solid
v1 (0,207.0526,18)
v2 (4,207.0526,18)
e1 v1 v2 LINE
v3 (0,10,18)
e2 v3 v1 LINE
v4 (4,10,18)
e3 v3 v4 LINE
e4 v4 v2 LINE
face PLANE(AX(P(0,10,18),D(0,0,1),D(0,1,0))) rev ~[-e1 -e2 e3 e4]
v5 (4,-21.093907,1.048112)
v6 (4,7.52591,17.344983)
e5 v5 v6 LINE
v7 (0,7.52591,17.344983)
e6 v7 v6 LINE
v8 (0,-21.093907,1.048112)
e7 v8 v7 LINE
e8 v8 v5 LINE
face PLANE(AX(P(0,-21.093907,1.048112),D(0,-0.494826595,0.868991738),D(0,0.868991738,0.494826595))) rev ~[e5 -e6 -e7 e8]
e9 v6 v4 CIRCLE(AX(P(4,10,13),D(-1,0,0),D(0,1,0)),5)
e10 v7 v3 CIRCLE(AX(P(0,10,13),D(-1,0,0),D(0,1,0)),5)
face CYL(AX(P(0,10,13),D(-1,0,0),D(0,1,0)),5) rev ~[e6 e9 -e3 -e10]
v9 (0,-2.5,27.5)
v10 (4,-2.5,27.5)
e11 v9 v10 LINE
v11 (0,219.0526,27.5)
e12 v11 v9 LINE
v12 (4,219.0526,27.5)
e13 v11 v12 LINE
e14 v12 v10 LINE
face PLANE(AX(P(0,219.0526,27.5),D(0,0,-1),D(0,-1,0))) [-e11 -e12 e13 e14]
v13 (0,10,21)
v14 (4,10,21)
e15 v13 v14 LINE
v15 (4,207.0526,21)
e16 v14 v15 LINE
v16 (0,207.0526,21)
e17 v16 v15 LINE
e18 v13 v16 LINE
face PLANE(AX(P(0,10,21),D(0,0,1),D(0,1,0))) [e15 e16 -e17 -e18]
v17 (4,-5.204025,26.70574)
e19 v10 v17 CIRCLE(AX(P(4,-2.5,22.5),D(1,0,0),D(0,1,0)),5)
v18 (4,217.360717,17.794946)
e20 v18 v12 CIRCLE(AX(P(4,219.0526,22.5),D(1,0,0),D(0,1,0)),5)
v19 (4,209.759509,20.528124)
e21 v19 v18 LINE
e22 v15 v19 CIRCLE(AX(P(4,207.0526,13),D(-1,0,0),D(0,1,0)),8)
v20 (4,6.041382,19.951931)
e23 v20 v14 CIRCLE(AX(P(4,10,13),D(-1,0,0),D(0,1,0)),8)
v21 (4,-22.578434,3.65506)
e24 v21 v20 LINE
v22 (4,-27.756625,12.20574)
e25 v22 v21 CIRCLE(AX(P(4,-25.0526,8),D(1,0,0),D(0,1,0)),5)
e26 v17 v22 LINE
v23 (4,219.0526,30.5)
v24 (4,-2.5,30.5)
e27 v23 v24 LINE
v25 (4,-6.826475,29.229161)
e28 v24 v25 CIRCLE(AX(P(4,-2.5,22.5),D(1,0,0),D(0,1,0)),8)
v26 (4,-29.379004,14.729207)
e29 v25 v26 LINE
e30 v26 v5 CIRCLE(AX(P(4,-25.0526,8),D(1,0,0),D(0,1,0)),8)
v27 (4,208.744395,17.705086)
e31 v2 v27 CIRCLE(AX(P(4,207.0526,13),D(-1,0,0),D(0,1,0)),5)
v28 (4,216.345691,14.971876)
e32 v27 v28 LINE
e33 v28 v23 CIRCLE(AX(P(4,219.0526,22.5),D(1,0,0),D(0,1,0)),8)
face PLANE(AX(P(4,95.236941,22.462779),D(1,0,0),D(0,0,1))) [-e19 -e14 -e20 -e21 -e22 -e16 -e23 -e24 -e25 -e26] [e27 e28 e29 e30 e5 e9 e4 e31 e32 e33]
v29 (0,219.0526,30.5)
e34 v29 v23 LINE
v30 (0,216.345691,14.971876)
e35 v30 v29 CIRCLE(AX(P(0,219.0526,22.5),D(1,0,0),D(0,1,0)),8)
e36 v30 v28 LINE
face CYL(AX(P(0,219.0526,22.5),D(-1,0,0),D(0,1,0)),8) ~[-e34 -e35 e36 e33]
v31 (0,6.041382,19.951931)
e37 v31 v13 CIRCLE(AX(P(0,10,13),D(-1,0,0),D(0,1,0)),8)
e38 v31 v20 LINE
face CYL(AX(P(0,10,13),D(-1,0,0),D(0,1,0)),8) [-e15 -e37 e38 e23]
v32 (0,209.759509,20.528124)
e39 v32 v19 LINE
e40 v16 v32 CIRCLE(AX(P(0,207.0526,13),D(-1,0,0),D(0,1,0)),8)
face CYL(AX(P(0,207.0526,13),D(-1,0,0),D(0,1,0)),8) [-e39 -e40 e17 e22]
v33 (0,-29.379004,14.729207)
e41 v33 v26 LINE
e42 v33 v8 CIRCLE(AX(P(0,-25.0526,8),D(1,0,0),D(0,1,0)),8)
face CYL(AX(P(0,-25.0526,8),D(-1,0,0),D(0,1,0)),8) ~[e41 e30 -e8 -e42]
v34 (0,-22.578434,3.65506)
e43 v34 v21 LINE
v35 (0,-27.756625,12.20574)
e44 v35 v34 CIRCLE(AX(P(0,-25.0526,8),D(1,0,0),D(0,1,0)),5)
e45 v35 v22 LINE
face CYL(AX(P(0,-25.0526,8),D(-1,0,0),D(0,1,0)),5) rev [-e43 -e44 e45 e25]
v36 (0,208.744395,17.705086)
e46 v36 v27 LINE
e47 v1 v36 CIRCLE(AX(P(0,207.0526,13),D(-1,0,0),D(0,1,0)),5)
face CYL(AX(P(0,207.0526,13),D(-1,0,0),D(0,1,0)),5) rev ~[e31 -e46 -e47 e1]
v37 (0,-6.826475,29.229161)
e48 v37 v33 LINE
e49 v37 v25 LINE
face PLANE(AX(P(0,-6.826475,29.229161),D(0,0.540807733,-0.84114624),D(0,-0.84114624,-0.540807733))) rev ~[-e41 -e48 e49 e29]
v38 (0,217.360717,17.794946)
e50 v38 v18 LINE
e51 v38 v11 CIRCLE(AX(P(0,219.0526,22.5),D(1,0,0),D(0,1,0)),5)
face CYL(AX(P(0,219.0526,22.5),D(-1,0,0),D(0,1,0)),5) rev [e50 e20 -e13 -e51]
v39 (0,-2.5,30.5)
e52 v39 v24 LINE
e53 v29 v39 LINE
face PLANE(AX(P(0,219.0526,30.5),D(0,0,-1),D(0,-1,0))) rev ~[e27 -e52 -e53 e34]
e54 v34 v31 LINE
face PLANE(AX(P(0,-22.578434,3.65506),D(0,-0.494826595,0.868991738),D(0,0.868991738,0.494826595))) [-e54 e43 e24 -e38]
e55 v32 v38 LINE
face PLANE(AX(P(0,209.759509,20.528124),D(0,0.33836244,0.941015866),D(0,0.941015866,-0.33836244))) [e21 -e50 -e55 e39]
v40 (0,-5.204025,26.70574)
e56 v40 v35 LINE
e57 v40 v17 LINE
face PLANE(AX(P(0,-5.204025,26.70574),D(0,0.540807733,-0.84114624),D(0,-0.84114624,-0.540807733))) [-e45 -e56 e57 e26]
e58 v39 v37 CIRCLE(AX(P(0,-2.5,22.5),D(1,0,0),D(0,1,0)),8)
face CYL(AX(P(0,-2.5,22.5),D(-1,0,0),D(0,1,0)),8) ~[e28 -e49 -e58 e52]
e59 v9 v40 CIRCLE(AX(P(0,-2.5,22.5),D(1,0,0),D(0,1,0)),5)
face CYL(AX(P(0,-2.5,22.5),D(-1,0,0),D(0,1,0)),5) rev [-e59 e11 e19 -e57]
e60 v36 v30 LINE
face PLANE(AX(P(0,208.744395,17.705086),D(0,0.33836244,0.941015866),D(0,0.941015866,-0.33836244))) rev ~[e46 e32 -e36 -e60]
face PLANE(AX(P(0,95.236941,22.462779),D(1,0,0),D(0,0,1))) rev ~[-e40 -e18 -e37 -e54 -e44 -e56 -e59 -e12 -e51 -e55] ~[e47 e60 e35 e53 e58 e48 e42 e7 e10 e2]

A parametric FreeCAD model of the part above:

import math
import FreeCAD as App
import Part
import Sketcher
from FreeCAD import Vector

doc = App.newDocument("Part")
params = doc.addObject("Spreadsheet::Sheet", "Params")
for row, (alias, value) in enumerate([
    ("sketch1_radius", "8 mm"),
    ("sketch1_radius2", "5 mm"),
    ("pad1_length", "4 mm"),
], start=1):
    params.set(f"A{row}", alias)
    params.set(f"B{row}", "=" + value)
    params.setAlias(f"B{row}", alias)

body = doc.addObject("PartDesign::Body", "Body")

# Sketch on YZ plane
sketch1 = body.newObject("Sketcher::SketchObject", "Sketch")
sketch1.AttachmentSupport = (doc.getObject("YZ_Plane"), [""])
sketch1.MapMode = "FlatFace"
sketch1.addGeometry(Part.ArcOfCircle(Part.Circle(Vector(219.1, 22.5, 0), Vector(0, 0, 1), 8), math.radians(-110), math.radians(90)), False)
sketch1.addGeometry(Part.LineSegment(Vector(219.1, 30.5, 0), Vector(-2.5, 30.5, 0)), False)
sketch1.addGeometry(Part.ArcOfCircle(Part.Circle(Vector(-2.5, 22.5, 0), Vector(0, 0, 1), 8), math.radians(90), math.radians(123)), False)
sketch1.addGeometry(Part.LineSegment(Vector(-6.8, 29.2, 0), Vector(-29.4, 14.7, 0)), False)
sketch1.addGeometry(Part.ArcOfCircle(Part.Circle(Vector(-25.1, 8, 0), Vector(0, 0, 1), 8), math.radians(123), math.radians(300)), False)
sketch1.addGeometry(Part.LineSegment(Vector(-21.1, 1, 0), Vector(7.5, 17.3, 0)), False)
sketch1.addGeometry(Part.ArcOfCircle(Part.Circle(Vector(10, 13, 0), Vector(0, 0, 1), 5), math.radians(90), math.radians(120)), False)
sketch1.addGeometry(Part.LineSegment(Vector(10, 18, 0), Vector(207.1, 18, 0)), False)
sketch1.addGeometry(Part.ArcOfCircle(Part.Circle(Vector(207.1, 13, 0), Vector(0, 0, 1), 5), math.radians(70.22), math.radians(90)), False)
sketch1.addGeometry(Part.LineSegment(Vector(208.7, 17.7, 0), Vector(216.3, 15, 0)), False)
sketch1.addGeometry(Part.LineSegment(Vector(-2.5, 27.5, 0), Vector(219.1, 27.5, 0)), False)
sketch1.addGeometry(Part.ArcOfCircle(Part.Circle(Vector(219.1, 22.5, 0), Vector(0, 0, 1), 5), math.radians(-110), math.radians(90)), False)
sketch1.addGeometry(Part.LineSegment(Vector(217.4, 17.8, 0), Vector(209.8, 20.5, 0)), False)
sketch1.addGeometry(Part.ArcOfCircle(Part.Circle(Vector(207.1, 13, 0), Vector(0, 0, 1), 8), math.radians(70.22), math.radians(90)), False)
sketch1.addGeometry(Part.LineSegment(Vector(207.1, 21, 0), Vector(10, 21, 0)), False)
sketch1.addGeometry(Part.ArcOfCircle(Part.Circle(Vector(10, 13, 0), Vector(0, 0, 1), 8), math.radians(90), math.radians(120)), False)
sketch1.addGeometry(Part.LineSegment(Vector(6, 20, 0), Vector(-22.6, 3.7, 0)), False)
sketch1.addGeometry(Part.ArcOfCircle(Part.Circle(Vector(-25.1, 8, 0), Vector(0, 0, 1), 5), math.radians(123), math.radians(300)), False)
sketch1.addGeometry(Part.LineSegment(Vector(-27.8, 12.2, 0), Vector(-5.2, 26.7, 0)), False)
sketch1.addGeometry(Part.ArcOfCircle(Part.Circle(Vector(-2.5, 22.5, 0), Vector(0, 0, 1), 5), math.radians(90), math.radians(123)), False)
sketch1.addConstraint(Sketcher.Constraint("Tangent", 0, 2, 1, 1))
sketch1.addConstraint(Sketcher.Constraint("Tangent", 1, 2, 2, 1))
sketch1.addConstraint(Sketcher.Constraint("Tangent", 2, 2, 3, 1))
sketch1.addConstraint(Sketcher.Constraint("Tangent", 3, 2, 4, 1))
sketch1.addConstraint(Sketcher.Constraint("Tangent", 4, 2, 5, 1))
sketch1.addConstraint(Sketcher.Constraint("Tangent", 5, 2, 6, 2))
sketch1.addConstraint(Sketcher.Constraint("Tangent", 6, 1, 7, 1))
sketch1.addConstraint(Sketcher.Constraint("Tangent", 7, 2, 8, 2))
sketch1.addConstraint(Sketcher.Constraint("Tangent", 8, 1, 9, 1))
sketch1.addConstraint(Sketcher.Constraint("Tangent", 9, 2, 0, 1))
sketch1.addConstraint(Sketcher.Constraint("Tangent", 10, 2, 11, 2))
sketch1.addConstraint(Sketcher.Constraint("Tangent", 11, 1, 12, 1))
sketch1.addConstraint(Sketcher.Constraint("Tangent", 12, 2, 13, 1))
sketch1.addConstraint(Sketcher.Constraint("Tangent", 13, 2, 14, 1))
sketch1.addConstraint(Sketcher.Constraint("Tangent", 14, 2, 15, 1))
sketch1.addConstraint(Sketcher.Constraint("Tangent", 15, 2, 16, 1))
sketch1.addConstraint(Sketcher.Constraint("Tangent", 16, 2, 17, 2))
sketch1.addConstraint(Sketcher.Constraint("Tangent", 17, 1, 18, 1))
sketch1.addConstraint(Sketcher.Constraint("Tangent", 18, 2, 19, 2))
sketch1.addConstraint(Sketcher.Constraint("Tangent", 19, 1, 10, 1))
sketch1.addConstraint(Sketcher.Constraint("Horizontal", 1))
sketch1.addConstraint(Sketcher.Constraint("Horizontal", 7))
sketch1.addConstraint(Sketcher.Constraint("Horizontal", 10))
sketch1.addConstraint(Sketcher.Constraint("Horizontal", 14))
sketch1.addConstraint(Sketcher.Constraint("Coincident", 11, 3, 0, 3))
sketch1.addConstraint(Sketcher.Constraint("Coincident", 13, 3, 8, 3))
sketch1.addConstraint(Sketcher.Constraint("Coincident", 15, 3, 6, 3))
sketch1.addConstraint(Sketcher.Constraint("Coincident", 17, 3, 4, 3))
sketch1.addConstraint(Sketcher.Constraint("Coincident", 19, 3, 2, 3))
sketch1.addConstraint(Sketcher.Constraint("Equal", 0, 2))
sketch1.addConstraint(Sketcher.Constraint("Equal", 2, 4))
sketch1.addConstraint(Sketcher.Constraint("Equal", 6, 8))
sketch1.addConstraint(Sketcher.Constraint("Equal", 8, 11))
sketch1.addConstraint(Sketcher.Constraint("Equal", 4, 13))
sketch1.addConstraint(Sketcher.Constraint("Equal", 11, 17))
sketch1.addConstraint(Sketcher.Constraint("Radius", 0, 8.0))
sketch1.addConstraint(Sketcher.Constraint("Radius", 6, 5.0))
sketch1.addConstraint(Sketcher.Constraint("DistanceY", -1, 1, 4, 3, 8.0))
sketch1.addConstraint(Sketcher.Constraint("DistanceX", -1, 1, 6, 3, 10.0))
sketch1.addConstraint(Sketcher.Constraint("DistanceY", -1, 1, 6, 3, 13.0))
sketch1.addConstraint(Sketcher.Constraint("DistanceX", 8, 3, 0, 3, 12.0))
sketch1.addConstraint(Sketcher.Constraint("DistanceY", -1, 1, 0, 3, 22.5))
sketch1.addConstraint(Sketcher.Constraint("DistanceX", 2, 3, -1, 1, 2.5))
sketch1.addConstraint(Sketcher.Constraint("DistanceX", 1, 2, 1, 1, 221.5526))
sketch1.addConstraint(Sketcher.Constraint("DistanceX", 3, 2, -1, 1, 29.379))
sketch1.setExpression("Constraints[35]", "Params.sketch1_radius")
sketch1.setExpression("Constraints[36]", "Params.sketch1_radius2")
pad1 = body.newObject("PartDesign::Pad", "Pad")
pad1.Profile = sketch1
pad1.setExpression("Length", "Params.pad1_length")

doc.recompute()
